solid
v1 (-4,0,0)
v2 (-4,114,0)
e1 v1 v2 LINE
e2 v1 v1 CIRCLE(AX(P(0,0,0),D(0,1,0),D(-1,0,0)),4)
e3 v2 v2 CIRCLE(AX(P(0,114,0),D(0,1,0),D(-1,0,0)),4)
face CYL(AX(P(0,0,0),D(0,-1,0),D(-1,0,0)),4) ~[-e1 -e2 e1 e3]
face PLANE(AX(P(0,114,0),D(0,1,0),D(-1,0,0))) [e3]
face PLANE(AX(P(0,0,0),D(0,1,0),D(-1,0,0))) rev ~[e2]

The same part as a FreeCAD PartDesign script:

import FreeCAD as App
import Part
import Sketcher
Q = App.Units.Quantity

doc = App.newDocument("Part")
body = doc.addObject("PartDesign::Body", "Body")

# Sketch on XZ plane
sketch1 = body.newObject("Sketcher::SketchObject", "Sketch")
sketch1.AttachmentSupport = (doc.getObject("XZ_Plane"), [""])
sketch1.MapMode = "FlatFace"
sketch1.addGeometry(Part.Circle(App.Vector(0, 0, 0), App.Vector(0, 0, 1), 4), False)
sketch1.addConstraint(Sketcher.Constraint("Coincident", 0, 3, -1, 1))
sketch1.addConstraint(Sketcher.Constraint("Diameter", 0, Q("8 mm")))
pad1 = body.newObject("PartDesign::Pad", "Pad")
pad1.Profile = sketch1
pad1.Length = 114
pad1.Reversed = True

doc.recompute()
